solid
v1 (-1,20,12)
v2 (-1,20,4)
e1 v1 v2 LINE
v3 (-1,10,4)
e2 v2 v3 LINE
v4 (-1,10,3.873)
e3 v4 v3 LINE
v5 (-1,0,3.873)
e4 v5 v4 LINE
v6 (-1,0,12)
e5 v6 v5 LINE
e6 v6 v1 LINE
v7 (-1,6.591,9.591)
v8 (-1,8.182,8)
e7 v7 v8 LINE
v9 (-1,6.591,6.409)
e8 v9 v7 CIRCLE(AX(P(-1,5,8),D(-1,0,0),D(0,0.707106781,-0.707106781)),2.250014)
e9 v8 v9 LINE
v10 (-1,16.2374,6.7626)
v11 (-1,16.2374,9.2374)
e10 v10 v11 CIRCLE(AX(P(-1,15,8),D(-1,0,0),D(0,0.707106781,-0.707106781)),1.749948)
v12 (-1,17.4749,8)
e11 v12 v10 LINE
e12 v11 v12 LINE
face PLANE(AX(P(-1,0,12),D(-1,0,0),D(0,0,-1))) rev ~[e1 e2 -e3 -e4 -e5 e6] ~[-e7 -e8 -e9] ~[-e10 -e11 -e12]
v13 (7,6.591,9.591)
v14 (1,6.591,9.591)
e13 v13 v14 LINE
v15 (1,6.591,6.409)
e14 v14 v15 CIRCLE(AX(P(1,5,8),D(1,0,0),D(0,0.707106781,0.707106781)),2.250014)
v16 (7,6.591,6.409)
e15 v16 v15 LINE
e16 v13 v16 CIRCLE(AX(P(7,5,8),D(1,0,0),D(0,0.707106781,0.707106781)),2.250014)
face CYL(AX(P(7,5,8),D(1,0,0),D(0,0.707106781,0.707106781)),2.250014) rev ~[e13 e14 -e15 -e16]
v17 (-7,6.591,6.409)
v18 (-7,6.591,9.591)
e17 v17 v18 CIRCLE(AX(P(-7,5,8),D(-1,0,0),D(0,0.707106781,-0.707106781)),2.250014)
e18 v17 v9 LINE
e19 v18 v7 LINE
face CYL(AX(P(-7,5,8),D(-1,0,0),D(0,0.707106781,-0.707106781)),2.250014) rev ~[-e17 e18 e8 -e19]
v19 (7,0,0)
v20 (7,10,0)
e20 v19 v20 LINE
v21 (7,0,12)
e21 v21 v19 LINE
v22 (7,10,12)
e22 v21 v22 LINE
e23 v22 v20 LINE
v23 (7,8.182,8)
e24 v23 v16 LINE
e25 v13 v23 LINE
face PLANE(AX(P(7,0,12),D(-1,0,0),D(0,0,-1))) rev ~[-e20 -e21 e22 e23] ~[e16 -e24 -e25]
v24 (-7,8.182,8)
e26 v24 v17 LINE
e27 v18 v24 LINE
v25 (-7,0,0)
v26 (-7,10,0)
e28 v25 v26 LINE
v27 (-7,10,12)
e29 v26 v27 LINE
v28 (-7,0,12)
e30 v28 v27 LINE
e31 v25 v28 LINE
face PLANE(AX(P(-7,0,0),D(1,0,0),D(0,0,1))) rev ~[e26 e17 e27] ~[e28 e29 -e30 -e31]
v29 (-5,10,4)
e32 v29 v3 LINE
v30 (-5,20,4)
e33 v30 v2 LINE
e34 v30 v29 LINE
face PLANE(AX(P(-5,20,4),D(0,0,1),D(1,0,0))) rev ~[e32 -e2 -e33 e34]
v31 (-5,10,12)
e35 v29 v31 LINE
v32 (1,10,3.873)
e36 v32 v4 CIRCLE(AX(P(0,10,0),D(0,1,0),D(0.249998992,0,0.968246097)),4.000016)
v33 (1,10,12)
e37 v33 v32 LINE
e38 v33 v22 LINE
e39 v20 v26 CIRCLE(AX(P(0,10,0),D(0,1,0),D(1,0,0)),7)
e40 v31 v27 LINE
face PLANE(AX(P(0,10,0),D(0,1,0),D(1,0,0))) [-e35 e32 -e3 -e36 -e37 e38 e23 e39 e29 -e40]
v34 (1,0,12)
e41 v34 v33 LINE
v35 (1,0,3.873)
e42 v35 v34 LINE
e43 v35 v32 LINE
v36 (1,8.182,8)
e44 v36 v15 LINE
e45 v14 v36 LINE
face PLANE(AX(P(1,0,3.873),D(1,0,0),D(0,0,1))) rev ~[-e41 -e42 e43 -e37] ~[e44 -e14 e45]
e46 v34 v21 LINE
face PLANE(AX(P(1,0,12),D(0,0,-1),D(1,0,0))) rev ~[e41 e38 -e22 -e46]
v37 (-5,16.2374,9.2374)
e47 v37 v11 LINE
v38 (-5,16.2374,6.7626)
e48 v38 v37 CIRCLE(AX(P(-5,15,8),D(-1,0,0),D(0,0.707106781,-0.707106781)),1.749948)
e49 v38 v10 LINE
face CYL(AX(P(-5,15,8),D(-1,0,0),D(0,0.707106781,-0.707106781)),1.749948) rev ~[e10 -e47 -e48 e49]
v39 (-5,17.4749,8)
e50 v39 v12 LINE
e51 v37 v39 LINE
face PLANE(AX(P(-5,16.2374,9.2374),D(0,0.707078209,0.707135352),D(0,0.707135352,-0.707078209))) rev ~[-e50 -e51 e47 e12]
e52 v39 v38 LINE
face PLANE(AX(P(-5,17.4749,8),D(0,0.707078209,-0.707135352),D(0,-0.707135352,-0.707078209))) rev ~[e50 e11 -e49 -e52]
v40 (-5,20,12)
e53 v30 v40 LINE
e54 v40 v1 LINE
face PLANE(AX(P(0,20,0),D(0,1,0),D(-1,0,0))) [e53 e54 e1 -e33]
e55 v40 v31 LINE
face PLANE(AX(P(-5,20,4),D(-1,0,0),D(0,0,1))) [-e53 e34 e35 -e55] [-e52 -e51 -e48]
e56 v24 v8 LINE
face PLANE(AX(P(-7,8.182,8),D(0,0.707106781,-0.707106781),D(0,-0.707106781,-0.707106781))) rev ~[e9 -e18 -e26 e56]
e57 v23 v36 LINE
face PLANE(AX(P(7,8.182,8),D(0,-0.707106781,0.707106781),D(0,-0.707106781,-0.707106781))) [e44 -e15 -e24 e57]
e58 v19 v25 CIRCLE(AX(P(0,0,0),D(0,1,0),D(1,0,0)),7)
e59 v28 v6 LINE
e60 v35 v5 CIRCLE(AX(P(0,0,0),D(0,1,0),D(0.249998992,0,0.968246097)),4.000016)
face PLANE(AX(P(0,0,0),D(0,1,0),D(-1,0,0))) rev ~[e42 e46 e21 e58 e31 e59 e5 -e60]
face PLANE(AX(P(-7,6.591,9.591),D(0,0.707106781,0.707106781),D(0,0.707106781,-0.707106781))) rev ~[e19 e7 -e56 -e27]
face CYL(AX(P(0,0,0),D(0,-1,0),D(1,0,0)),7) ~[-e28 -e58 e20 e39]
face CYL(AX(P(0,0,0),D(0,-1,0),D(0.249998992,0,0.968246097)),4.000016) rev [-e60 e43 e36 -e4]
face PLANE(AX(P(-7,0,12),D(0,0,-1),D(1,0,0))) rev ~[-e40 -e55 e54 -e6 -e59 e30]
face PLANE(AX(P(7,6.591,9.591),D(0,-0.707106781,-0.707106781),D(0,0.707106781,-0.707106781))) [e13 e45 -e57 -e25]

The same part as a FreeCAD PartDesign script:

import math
import FreeCAD as App
import Part
import Sketcher

V = App.Vector
Q = App.Units.Quantity

doc = App.newDocument("Part")
body = doc.addObject("PartDesign::Body", "Body")

# Sketch on XZ plane
sketch1 = body.newObject("Sketcher::SketchObject", "Sketch")
sketch1.AttachmentSupport = (doc.getObject("XZ_Plane"), [""])
sketch1.MapMode = "FlatFace"
sketch1.addGeometry(Part.ArcOfCircle(Part.Circle(V(0, 0, 0), V(0, 0, 1), 7), math.radians(180), math.radians(360)), False)
sketch1.addGeometry(Part.LineSegment(V(-7, 0, 0), V(-7, 12, 0)), False)
sketch1.addGeometry(Part.LineSegment(V(-7, 12, 0), V(-1, 12, 0)), False)
sketch1.addGeometry(Part.LineSegment(V(-1, 12, 0), V(-1, 3.873, 0)), False)
sketch1.addGeometry(Part.ArcOfCircle(Part.Circle(V(0, 0, 0), V(0, 0, 1), 4.000016), math.radians(104.477453), math.radians(435.522547)), False)
sketch1.addGeometry(Part.LineSegment(V(1, 3.873, 0), V(1, 12, 0)), False)
sketch1.addGeometry(Part.LineSegment(V(1, 12, 0), V(7, 12, 0)), False)
sketch1.addGeometry(Part.LineSegment(V(7, 12, 0), V(7, 0, 0)), False)
sketch1.addConstraint(Sketcher.Constraint("Tangent", 0, 1, 1, 1))
sketch1.addConstraint(Sketcher.Constraint("Coincident", 1, 2, 2, 1))
sketch1.addConstraint(Sketcher.Constraint("Coincident", 2, 2, 3, 1))
sketch1.addConstraint(Sketcher.Constraint("Coincident", 3, 2, 4, 1))
sketch1.addConstraint(Sketcher.Constraint("Coincident", 4, 2, 5, 1))
sketch1.addConstraint(Sketcher.Constraint("Coincident", 5, 2, 6, 1))
sketch1.addConstraint(Sketcher.Constraint("Coincident", 6, 2, 7, 1))
sketch1.addConstraint(Sketcher.Constraint("Tangent", 7, 2, 0, 2))
sketch1.addConstraint(Sketcher.Constraint("Vertical", 1))
sketch1.addConstraint(Sketcher.Constraint("Horizontal", 2))
sketch1.addConstraint(Sketcher.Constraint("Vertical", 3))
sketch1.addConstraint(Sketcher.Constraint("Vertical", 5))
sketch1.addConstraint(Sketcher.Constraint("Horizontal", 6))
sketch1.addConstraint(Sketcher.Constraint("Vertical", 7))
sketch1.addConstraint(Sketcher.Constraint("Coincident", 0, 3, -1, 1))
sketch1.addConstraint(Sketcher.Constraint("Coincident", 4, 3, -1, 1))
sketch1.addConstraint(Sketcher.Constraint("Symmetric", 2, 2, 5, 2, -2))
sketch1.addConstraint(Sketcher.Constraint("Radius", 0, Q("7 mm")))
sketch1.addConstraint(Sketcher.Constraint("Radius", 4, Q("4 mm")))
sketch1.addConstraint(Sketcher.Constraint("DistanceX", 2, 1, 2, 2, Q("6 mm")))
sketch1.addConstraint(Sketcher.Constraint("DistanceY", 1, 1, 1, 2, Q("12 mm")))
pad1 = body.newObject("PartDesign::Pad", "Pad")
pad1.Profile = sketch1
pad1.Length = 20
pad1.Reversed = True

# Sketch on XZ plane
sketch2 = body.newObject("Sketcher::SketchObject", "Sketch001")
sketch2.AttachmentSupport = (doc.getObject("XZ_Plane"), [""])
sketch2.MapMode = "FlatFace"
sketch2.AttachmentOffset = App.Placement(V(0, 0, -20), App.Rotation())
sketch2.addGeometry(Part.LineSegment(V(-5, 12, 0), V(-5, 4, 0)), False)
sketch2.addGeometry(Part.LineSegment(V(-5, 4, 0), V(-1, 4, 0)), False)
sketch2.addGeometry(Part.LineSegment(V(-1, 4, 0), V(-1, 3.873, 0)), False)
sketch2.addGeometry(Part.ArcOfCircle(Part.Circle(V(0, 0, 0), V(0, 0, 1), 4.000016), math.radians(104.477453), math.radians(435.522547)), False)
sketch2.addGeometry(Part.LineSegment(V(1, 3.873, 0), V(1, 12, 0)), False)
sketch2.addGeometry(Part.LineSegment(V(1, 12, 0), V(7, 12, 0)), False)
sketch2.addGeometry(Part.LineSegment(V(7, 12, 0), V(7, 0, 0)), False)
sketch2.addGeometry(Part.ArcOfCircle(Part.Circle(V(0, 0, 0), V(0, 0, 1), 7), math.radians(180), math.radians(360)), False)
sketch2.addGeometry(Part.LineSegment(V(-7, 0, 0), V(-7, 12, 0)), False)
sketch2.addGeometry(Part.LineSegment(V(-7, 12, 0), V(-5, 12, 0)), False)
sketch2.addConstraint(Sketcher.Constraint("Coincident", 0, 2, 1, 1))
sketch2.addConstraint(Sketcher.Constraint("Coincident", 1, 2, 2, 1))
sketch2.addConstraint(Sketcher.Constraint("Coincident", 2, 2, 3, 1))
sketch2.addConstraint(Sketcher.Constraint("Coincident", 3, 2, 4, 1))
sketch2.addConstraint(Sketcher.Constraint("Coincident", 4, 2, 5, 1))
sketch2.addConstraint(Sketcher.Constraint("Coincident", 5, 2, 6, 1))
sketch2.addConstraint(Sketcher.Constraint("Tangent", 6, 2, 7, 2))
sketch2.addConstraint(Sketcher.Constraint("Tangent", 7, 1, 8, 1))
sketch2.addConstraint(Sketcher.Constraint("Coincident", 8, 2, 9, 1))
sketch2.addConstraint(Sketcher.Constraint("Coincident", 9, 2, 0, 1))
sketch2.addConstraint(Sketcher.Constraint("Vertical", 0))
sketch2.addConstraint(Sketcher.Constraint("Horizontal", 1))
sketch2.addConstraint(Sketcher.Constraint("Vertical", 2))
sketch2.addConstraint(Sketcher.Constraint("Vertical", 4))
sketch2.addConstraint(Sketcher.Constraint("Horizontal", 5))
sketch2.addConstraint(Sketcher.Constraint("Vertical", 6))
sketch2.addConstraint(Sketcher.Constraint("Vertical", 8))
sketch2.addConstraint(Sketcher.Constraint("Horizontal", 9))
sketch2.addConstraint(Sketcher.Constraint("Coincident", 3, 3, -1, 1))
sketch2.addConstraint(Sketcher.Constraint("Coincident", 7, 3, -1, 1))
sketch2.addConstraint(Sketcher.Constraint("Horizontal", 2, 2, 3, 2))
sketch2.addConstraint(Sketcher.Constraint("Horizontal", 5, 2, 8, 2))
sketch2.addConstraint(Sketcher.Constraint("Radius", 3, Q("4 mm")))
sketch2.addConstraint(Sketcher.Constraint("Radius", 7, Q("7 mm")))
sketch2.addConstraint(Sketcher.Constraint("DistanceX", 1, 1, 1, 2, Q("4 mm")))
sketch2.addConstraint(Sketcher.Constraint("DistanceX", 5, 1, 5, 2, Q("6 mm")))
sketch2.addConstraint(Sketcher.Constraint("DistanceY", 0, 2, 0, 1, Q("8 mm")))
sketch2.addConstraint(Sketcher.Constraint("DistanceY", 6, 2, 6, 1, Q("12 mm")))
pocket1 = body.newObject("PartDesign::Pocket", "Pocket")
pocket1.Profile = sketch2
pocket1.Length = 10
pocket1.Reversed = True

# Sketch on YZ plane
sketch3 = body.newObject("Sketcher::SketchObject", "Sketch002")
sketch3.AttachmentSupport = (doc.getObject("YZ_Plane"), [""])
sketch3.MapMode = "FlatFace"
sketch3.AttachmentOffset = App.Placement(V(0, 0, -7), App.Rotation())
sketch3.addGeometry(Part.LineSegment(V(8.182, 8, 0), V(6.591, 6.409, 0)), False)
sketch3.addGeometry(Part.ArcOfCircle(Part.Circle(V(5, 8, 0), V(0, 0, 1), 2.250014), math.radians(45), math.radians(315)), False)
sketch3.addGeometry(Part.LineSegment(V(6.591, 9.591, 0), V(8.182, 8, 0)), False)
sketch3.addConstraint(Sketcher.Constraint("Tangent", 0, 2, 1, 2))
sketch3.addConstraint(Sketcher.Constraint("Tangent", 1, 1, 2, 1))
sketch3.addConstraint(Sketcher.Constraint("Coincident", 2, 2, 0, 1))
sketch3.addConstraint(Sketcher.Constraint("Perpendicular", 0, 2))
sketch3.addConstraint(Sketcher.Constraint("Horizontal", 1, 3, 2, 2))
sketch3.addConstraint(Sketcher.Constraint("Radius", 1, Q("2.25 mm")))
sketch3.addConstraint(Sketcher.Constraint("DistanceX", -1, 1, 1, 3, Q("5 mm")))
sketch3.addConstraint(Sketcher.Constraint("DistanceY", -1, 1, 1, 3, Q("8 mm")))
pocket2 = body.newObject("PartDesign::Pocket", "Pocket001")
pocket2.Profile = sketch3
pocket2.Length = 6
pocket2.Reversed = True

# Sketch on YZ plane
sketch4 = body.newObject("Sketcher::SketchObject", "Sketch003")
sketch4.AttachmentSupport = (doc.getObject("YZ_Plane"), [""])
sketch4.MapMode = "FlatFace"
sketch4.AttachmentOffset = App.Placement(V(0, 0, 7), App.Rotation())
sketch4.addGeometry(Part.LineSegment(V(8.182, 8, 0), V(6.591, 9.591, 0)), False)
sketch4.addGeometry(Part.ArcOfCircle(Part.Circle(V(5, 8, 0), V(0, 0, 1), 2.250014), math.radians(45), math.radians(315)), False)
sketch4.addGeometry(Part.LineSegment(V(6.591, 6.409, 0), V(8.182, 8, 0)), False)
sketch4.addConstraint(Sketcher.Constraint("Tangent", 0, 2, 1, 1))
sketch4.addConstraint(Sketcher.Constraint("Tangent", 1, 2, 2, 1))
sketch4.addConstraint(Sketcher.Constraint("Coincident", 2, 2, 0, 1))
sketch4.addConstraint(Sketcher.Constraint("Perpendicular", 0, 2))
sketch4.addConstraint(Sketcher.Constraint("Horizontal", 1, 3, 2, 2))
sketch4.addConstraint(Sketcher.Constraint("Radius", 1, Q("2.25 mm")))
sketch4.addConstraint(Sketcher.Constraint("DistanceX", -1, 1, 1, 3, Q("5 mm")))
sketch4.addConstraint(Sketcher.Constraint("DistanceY", -1, 1, 1, 3, Q("8 mm")))
pocket3 = body.newObject("PartDesign::Pocket", "Pocket002")
pocket3.Profile = sketch4
pocket3.Length = 6

# Sketch on YZ plane
sketch5 = body.newObject("Sketcher::SketchObject", "Sketch004")
sketch5.AttachmentSupport = (doc.getObject("YZ_Plane"), [""])
sketch5.MapMode = "FlatFace"
sketch5.AttachmentOffset = App.Placement(V(0, 0, -5), App.Rotation())
sketch5.addGeometry(Part.ArcOfCircle(Part.Circle(V(15, 8, 0), V(0, 0, 1), 1.749948), math.radians(45), math.radians(315)), False)
sketch5.addGeometry(Part.LineSegment(V(16.2374, 9.2374, 0), V(17.4749, 8, 0)), False)
sketch5.addGeometry(Part.LineSegment(V(17.4749, 8, 0), V(16.2374, 6.7626, 0)), False)
sketch5.addConstraint(Sketcher.Constraint("Tangent", 0, 1, 1, 1))
sketch5.addConstraint(Sketcher.Constraint("Coincident", 1, 2, 2, 1))
sketch5.addConstraint(Sketcher.Constraint("Tangent", 2, 2, 0, 2))
sketch5.addConstraint(Sketcher.Constraint("Perpendicular", 1, 2))
sketch5.addConstraint(Sketcher.Constraint("Horizontal", 0, 3, 1, 2))
sketch5.addConstraint(Sketcher.Constraint("Radius", 0, Q("1.75 mm")))
sketch5.addConstraint(Sketcher.Constraint("DistanceX", -1, 1, 0, 3, Q("15 mm")))
sketch5.addConstraint(Sketcher.Constraint("DistanceY", -1, 1, 0, 3, Q("8 mm")))
pocket4 = body.newObject("PartDesign::Pocket", "Pocket003")
pocket4.Profile = sketch5
pocket4.Length = 4
pocket4.Reversed = True

doc.recompute()
